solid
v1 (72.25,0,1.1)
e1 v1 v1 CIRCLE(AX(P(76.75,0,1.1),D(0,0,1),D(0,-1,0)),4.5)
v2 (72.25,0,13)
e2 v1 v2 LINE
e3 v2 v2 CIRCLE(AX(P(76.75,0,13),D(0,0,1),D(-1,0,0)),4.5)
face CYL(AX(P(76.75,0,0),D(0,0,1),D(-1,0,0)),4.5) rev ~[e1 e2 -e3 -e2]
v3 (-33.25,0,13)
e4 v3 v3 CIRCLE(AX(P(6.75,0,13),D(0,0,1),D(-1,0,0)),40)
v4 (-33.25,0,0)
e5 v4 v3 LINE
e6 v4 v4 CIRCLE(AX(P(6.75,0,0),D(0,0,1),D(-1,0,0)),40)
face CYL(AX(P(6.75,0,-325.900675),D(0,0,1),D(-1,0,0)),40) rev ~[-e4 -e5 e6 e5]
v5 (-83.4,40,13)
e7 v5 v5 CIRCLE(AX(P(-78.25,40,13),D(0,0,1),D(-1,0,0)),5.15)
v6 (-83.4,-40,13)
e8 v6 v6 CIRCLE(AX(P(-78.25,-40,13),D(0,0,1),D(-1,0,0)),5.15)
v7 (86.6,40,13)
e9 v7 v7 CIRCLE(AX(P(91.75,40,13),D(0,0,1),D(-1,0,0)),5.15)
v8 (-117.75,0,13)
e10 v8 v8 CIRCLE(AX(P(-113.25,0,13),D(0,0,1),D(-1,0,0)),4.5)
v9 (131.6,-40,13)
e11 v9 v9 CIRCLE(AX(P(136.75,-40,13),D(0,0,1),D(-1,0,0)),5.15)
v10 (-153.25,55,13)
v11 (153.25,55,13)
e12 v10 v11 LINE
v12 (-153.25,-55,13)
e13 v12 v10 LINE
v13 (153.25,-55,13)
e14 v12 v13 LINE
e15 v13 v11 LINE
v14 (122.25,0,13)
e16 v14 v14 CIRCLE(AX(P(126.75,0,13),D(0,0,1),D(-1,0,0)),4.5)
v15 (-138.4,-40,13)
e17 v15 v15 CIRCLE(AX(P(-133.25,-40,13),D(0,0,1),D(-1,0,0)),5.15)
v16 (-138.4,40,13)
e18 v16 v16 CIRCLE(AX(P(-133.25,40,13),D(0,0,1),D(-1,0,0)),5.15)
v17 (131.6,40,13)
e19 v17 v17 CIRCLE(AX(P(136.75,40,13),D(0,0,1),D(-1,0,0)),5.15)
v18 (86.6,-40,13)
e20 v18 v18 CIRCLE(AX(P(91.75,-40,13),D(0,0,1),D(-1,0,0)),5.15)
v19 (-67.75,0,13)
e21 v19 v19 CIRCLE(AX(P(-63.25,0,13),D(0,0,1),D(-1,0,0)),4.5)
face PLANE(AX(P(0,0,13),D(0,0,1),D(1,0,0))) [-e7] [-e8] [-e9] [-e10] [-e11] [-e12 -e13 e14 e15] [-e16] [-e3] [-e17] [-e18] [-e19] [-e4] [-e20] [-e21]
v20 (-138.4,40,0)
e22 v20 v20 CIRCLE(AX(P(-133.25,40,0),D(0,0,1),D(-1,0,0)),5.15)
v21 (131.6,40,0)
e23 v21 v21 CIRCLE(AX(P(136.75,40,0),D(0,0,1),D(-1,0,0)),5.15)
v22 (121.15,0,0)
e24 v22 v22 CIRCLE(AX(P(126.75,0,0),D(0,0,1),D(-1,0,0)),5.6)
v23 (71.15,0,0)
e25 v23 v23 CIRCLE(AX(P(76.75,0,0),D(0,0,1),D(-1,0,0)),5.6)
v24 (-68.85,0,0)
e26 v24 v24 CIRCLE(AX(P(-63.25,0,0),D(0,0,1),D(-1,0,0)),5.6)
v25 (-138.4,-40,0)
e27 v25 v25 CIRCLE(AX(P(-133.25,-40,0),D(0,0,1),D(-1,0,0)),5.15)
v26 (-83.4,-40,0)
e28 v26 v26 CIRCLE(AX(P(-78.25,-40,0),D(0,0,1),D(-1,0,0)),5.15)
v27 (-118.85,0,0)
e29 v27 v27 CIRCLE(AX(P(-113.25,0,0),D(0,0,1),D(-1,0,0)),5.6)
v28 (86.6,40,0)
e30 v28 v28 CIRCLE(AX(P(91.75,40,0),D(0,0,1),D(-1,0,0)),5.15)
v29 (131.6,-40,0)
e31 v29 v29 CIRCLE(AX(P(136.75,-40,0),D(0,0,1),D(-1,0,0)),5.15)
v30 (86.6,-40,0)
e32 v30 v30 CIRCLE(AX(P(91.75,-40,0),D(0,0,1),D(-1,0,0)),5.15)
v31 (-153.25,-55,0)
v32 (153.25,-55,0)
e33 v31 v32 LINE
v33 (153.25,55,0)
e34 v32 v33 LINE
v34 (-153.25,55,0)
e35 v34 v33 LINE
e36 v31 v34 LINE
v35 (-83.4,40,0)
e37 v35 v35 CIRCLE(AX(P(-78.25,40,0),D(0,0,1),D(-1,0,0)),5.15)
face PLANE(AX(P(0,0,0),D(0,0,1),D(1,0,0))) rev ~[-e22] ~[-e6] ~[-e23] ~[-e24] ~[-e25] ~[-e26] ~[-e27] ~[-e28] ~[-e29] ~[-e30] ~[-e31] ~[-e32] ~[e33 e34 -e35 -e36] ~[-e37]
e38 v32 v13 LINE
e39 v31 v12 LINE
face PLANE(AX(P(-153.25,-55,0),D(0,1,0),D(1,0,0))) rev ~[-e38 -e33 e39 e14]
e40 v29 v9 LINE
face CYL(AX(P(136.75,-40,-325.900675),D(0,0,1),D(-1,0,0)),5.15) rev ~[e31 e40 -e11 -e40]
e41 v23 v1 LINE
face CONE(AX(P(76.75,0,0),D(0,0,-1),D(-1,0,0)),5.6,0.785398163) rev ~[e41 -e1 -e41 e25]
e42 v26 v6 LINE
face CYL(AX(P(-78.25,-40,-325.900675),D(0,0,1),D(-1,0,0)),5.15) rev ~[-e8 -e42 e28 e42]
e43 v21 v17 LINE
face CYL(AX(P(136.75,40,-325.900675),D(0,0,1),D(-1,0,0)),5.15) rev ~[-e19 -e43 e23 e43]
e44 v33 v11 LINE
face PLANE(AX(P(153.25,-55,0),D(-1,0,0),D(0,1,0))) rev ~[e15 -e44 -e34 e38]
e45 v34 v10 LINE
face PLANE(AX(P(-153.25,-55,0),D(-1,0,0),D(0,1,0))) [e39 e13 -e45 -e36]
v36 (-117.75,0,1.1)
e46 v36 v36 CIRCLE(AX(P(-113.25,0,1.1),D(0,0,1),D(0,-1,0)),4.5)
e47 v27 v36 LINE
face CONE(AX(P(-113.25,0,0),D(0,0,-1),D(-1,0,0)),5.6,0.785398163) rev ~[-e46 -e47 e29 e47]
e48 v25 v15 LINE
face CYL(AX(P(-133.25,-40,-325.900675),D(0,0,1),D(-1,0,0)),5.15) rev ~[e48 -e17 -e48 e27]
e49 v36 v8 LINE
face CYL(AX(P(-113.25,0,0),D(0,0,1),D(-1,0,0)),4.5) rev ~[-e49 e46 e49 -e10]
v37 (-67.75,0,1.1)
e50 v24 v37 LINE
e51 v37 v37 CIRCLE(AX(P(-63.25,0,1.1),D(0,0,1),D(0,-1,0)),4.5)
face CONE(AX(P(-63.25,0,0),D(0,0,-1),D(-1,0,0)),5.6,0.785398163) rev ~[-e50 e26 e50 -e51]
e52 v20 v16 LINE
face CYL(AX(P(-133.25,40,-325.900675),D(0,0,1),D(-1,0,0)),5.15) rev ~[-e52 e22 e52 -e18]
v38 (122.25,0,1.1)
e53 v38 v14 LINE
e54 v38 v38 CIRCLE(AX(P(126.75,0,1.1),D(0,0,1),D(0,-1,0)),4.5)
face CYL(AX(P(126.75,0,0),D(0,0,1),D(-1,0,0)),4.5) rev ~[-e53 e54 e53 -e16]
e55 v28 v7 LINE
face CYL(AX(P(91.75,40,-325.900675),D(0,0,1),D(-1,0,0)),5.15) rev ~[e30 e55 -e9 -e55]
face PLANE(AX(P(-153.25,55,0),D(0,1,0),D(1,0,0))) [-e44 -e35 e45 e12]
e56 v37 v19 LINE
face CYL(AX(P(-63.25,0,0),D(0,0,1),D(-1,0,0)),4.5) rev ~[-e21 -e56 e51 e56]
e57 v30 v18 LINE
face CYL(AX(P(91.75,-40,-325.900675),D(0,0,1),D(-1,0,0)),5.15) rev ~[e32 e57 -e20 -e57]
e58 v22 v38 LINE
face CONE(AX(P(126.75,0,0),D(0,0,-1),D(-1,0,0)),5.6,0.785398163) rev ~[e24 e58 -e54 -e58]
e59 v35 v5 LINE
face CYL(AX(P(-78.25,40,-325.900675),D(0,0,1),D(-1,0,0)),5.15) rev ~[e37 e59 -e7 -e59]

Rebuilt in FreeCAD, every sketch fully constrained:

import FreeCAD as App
import Part
import Sketcher
from FreeCAD import Vector


def add_polygon(sketch, points):
    """Adds a closed chain of lines whose ends are joined by coincident constraints."""
    first, n = sketch.GeometryCount, len(points)
    for a, b in zip(points, points[1:] + points[:1]):
        sketch.addGeometry(Part.LineSegment(App.Vector(*a, 0), App.Vector(*b, 0)), False)
    for i in range(n):
        sketch.addConstraint(Sketcher.Constraint("Coincident", first + i, 2, first + (i + 1) % n, 1))

doc = App.newDocument("Part")
params = doc.addObject("Spreadsheet::Sheet", "Params")
for row, (alias, value) in enumerate([
    ("sketch1_height", "110 mm"),
    ("sketch1_width", "306.5 mm"),
    ("pad1_length", "13 mm"),
    ("sketch2_diameter", "9 mm"),
    ("hole_diameter", "9 mm"),
    ("hole_csink_diameter", "11.2 mm"),
    ("sketch3_diameter", "80 mm"),
    ("hole2_diameter", "80 mm"),
    ("sketch4_diameter", "10.3 mm"),
    ("hole3_diameter", "10.3 mm"),
], start=1):
    params.set(f"A{row}", alias)
    params.set(f"B{row}", "=" + value)
    params.setAlias(f"B{row}", alias)

body = doc.addObject("PartDesign::Body", "Body")

# Sketch on XY plane
sketch1 = body.newObject("Sketcher::SketchObject", "Sketch")
sketch1.AttachmentSupport = (doc.getObject("XY_Plane"), [""])
sketch1.MapMode = "FlatFace"
add_polygon(sketch1, [(-153.25, 55), (-153.25, -55), (153.25, -55), (153.25, 55)])  # lines 0-3
sketch1.addConstraint([
    Sketcher.Constraint("Vertical", 0),
    Sketcher.Constraint("Horizontal", 1),
    Sketcher.Constraint("Vertical", 2),
    Sketcher.Constraint("Horizontal", 3),
    Sketcher.Constraint("Symmetric", 0, 2, 2, 2, -1, 1),
    Sketcher.Constraint("DistanceY", 0, 2, 0, 1, 110.0),
    Sketcher.Constraint("DistanceX", 1, 1, 1, 2, 306.5),
])
sketch1.setExpression("Constraints[9]", "Params.sketch1_height")
sketch1.setExpression("Constraints[10]", "Params.sketch1_width")
pad1 = body.newObject("PartDesign::Pad", "Pad")
pad1.Profile = sketch1
pad1.setExpression("Length", "Params.pad1_length")

# Sketch on XY plane
sketch2 = body.newObject("Sketcher::SketchObject", "Sketch001")
sketch2.AttachmentSupport = (doc.getObject("XY_Plane"), [""])
sketch2.MapMode = "FlatFace"
sketch2.addGeometry([
    Part.Circle(Vector(-113.25, 0, 0), Vector(0, 0, 1), 4.5),
    Part.Circle(Vector(-63.25, 0, 0), Vector(0, 0, 1), 4.5),
    Part.Circle(Vector(76.75, 0, 0), Vector(0, 0, 1), 4.5),
    Part.Circle(Vector(126.75, 0, 0), Vector(0, 0, 1), 4.5),
], False)
sketch2.addConstraint([
    Sketcher.Constraint("Equal", 0, 1),
    Sketcher.Constraint("Equal", 1, 2),
    Sketcher.Constraint("Equal", 2, 3),
    Sketcher.Constraint("PointOnObject", 0, 3, -1),
    Sketcher.Constraint("PointOnObject", 1, 3, -1),
    Sketcher.Constraint("PointOnObject", 2, 3, -1),
    Sketcher.Constraint("PointOnObject", 3, 3, -1),
    Sketcher.Constraint("Diameter", 0, 9.0),
    Sketcher.Constraint("DistanceX", 0, 3, 1, 3, 50.0),
    Sketcher.Constraint("DistanceX", 1, 3, 2, 3, 140.0),
    Sketcher.Constraint("DistanceX", 2, 3, 3, 3, 50.0),
    Sketcher.Constraint("DistanceX", 0, 3, -1, 1, 113.25),
])
sketch2.setExpression("Constraints[7]", "Params.sketch2_diameter")
doc.recompute()
hole = body.newObject("PartDesign::Hole", "Hole")
hole.Profile = sketch2
hole.ThreadType = "None"
hole.setExpression("Diameter", "Params.hole_diameter")
hole.DepthType = "ThroughAll"
hole.HoleCutType = "Countersink"
hole.setExpression("HoleCutDiameter", "Params.hole_csink_diameter")
hole.HoleCutCountersinkAngle = 90
hole.Reversed = True

# Sketch on XY plane
sketch3 = body.newObject("Sketcher::SketchObject", "Sketch002")
sketch3.AttachmentSupport = (doc.getObject("XY_Plane"), [""])
sketch3.MapMode = "FlatFace"
sketch3.addGeometry(Part.Circle(Vector(6.75, 0, 0), Vector(0, 0, 1), 40), False)
sketch3.addConstraint([
    Sketcher.Constraint("PointOnObject", 0, 3, -1),
    Sketcher.Constraint("Diameter", 0, 80.0),
    Sketcher.Constraint("DistanceX", -1, 1, 0, 3, 6.75),
])
sketch3.setExpression("Constraints[1]", "Params.sketch3_diameter")
doc.recompute()
hole2 = body.newObject("PartDesign::Hole", "Hole001")
hole2.Profile = sketch3
hole2.ThreadType = "None"
hole2.setExpression("Diameter", "Params.hole2_diameter")
hole2.DepthType = "ThroughAll"
hole2.Reversed = True

# Sketch on XY plane
sketch4 = body.newObject("Sketcher::SketchObject", "Sketch003")
sketch4.AttachmentSupport = (doc.getObject("XY_Plane"), [""])
sketch4.MapMode = "FlatFace"
sketch4.addGeometry([
    Part.Circle(Vector(-133.25, -40, 0), Vector(0, 0, 1), 5.15),  # 0
    Part.Circle(Vector(-78.25, -40, 0), Vector(0, 0, 1), 5.15),  # 1
    Part.Circle(Vector(-133.25, 40, 0), Vector(0, 0, 1), 5.15),  # 2
    Part.Circle(Vector(-78.25, 40, 0), Vector(0, 0, 1), 5.15),  # 3
    Part.Circle(Vector(91.75, -40, 0), Vector(0, 0, 1), 5.15),  # 4
    Part.Circle(Vector(136.75, -40, 0), Vector(0, 0, 1), 5.15),  # 5
    Part.Circle(Vector(91.75, 40, 0), Vector(0, 0, 1), 5.15),  # 6
    Part.Circle(Vector(136.75, 40, 0), Vector(0, 0, 1), 5.15),  # 7
], False)
sketch4.addConstraint([
    Sketcher.Constraint("Equal", 0, 1),
    Sketcher.Constraint("Equal", 1, 2),
    Sketcher.Constraint("Equal", 2, 3),
    Sketcher.Constraint("Equal", 3, 4),
    Sketcher.Constraint("Equal", 4, 5),
    Sketcher.Constraint("Equal", 5, 6),
    Sketcher.Constraint("Equal", 6, 7),
    Sketcher.Constraint("Symmetric", 0, 3, 2, 3, -1),
    Sketcher.Constraint("Symmetric", 1, 3, 3, 3, -1),
    Sketcher.Constraint("Symmetric", 4, 3, 6, 3, -1),
    Sketcher.Constraint("Symmetric", 5, 3, 7, 3, -1),
    Sketcher.Constraint("Horizontal", 0, 3, 1, 3),
    Sketcher.Constraint("Horizontal", 1, 3, 4, 3),
    Sketcher.Constraint("Horizontal", 4, 3, 5, 3),
    Sketcher.Constraint("Diameter", 0, 10.3),
    Sketcher.Constraint("DistanceY", 0, 3, -1, 1, 40.0),
    Sketcher.Constraint("DistanceX", 0, 3, 1, 3, 55.0),
    Sketcher.Constraint("DistanceX", 1, 3, 4, 3, 170.0),
    Sketcher.Constraint("DistanceX", 4, 3, 5, 3, 45.0),
    Sketcher.Constraint("DistanceX", 0, 3, -1, 1, 133.25),
])
sketch4.setExpression("Constraints[14]", "Params.sketch4_diameter")
doc.recompute()
hole3 = body.newObject("PartDesign::Hole", "Hole002")
hole3.Profile = sketch4
hole3.ThreadType = "None"
hole3.setExpression("Diameter", "Params.hole3_diameter")
hole3.DepthType = "ThroughAll"
hole3.Reversed = True

doc.recompute()
